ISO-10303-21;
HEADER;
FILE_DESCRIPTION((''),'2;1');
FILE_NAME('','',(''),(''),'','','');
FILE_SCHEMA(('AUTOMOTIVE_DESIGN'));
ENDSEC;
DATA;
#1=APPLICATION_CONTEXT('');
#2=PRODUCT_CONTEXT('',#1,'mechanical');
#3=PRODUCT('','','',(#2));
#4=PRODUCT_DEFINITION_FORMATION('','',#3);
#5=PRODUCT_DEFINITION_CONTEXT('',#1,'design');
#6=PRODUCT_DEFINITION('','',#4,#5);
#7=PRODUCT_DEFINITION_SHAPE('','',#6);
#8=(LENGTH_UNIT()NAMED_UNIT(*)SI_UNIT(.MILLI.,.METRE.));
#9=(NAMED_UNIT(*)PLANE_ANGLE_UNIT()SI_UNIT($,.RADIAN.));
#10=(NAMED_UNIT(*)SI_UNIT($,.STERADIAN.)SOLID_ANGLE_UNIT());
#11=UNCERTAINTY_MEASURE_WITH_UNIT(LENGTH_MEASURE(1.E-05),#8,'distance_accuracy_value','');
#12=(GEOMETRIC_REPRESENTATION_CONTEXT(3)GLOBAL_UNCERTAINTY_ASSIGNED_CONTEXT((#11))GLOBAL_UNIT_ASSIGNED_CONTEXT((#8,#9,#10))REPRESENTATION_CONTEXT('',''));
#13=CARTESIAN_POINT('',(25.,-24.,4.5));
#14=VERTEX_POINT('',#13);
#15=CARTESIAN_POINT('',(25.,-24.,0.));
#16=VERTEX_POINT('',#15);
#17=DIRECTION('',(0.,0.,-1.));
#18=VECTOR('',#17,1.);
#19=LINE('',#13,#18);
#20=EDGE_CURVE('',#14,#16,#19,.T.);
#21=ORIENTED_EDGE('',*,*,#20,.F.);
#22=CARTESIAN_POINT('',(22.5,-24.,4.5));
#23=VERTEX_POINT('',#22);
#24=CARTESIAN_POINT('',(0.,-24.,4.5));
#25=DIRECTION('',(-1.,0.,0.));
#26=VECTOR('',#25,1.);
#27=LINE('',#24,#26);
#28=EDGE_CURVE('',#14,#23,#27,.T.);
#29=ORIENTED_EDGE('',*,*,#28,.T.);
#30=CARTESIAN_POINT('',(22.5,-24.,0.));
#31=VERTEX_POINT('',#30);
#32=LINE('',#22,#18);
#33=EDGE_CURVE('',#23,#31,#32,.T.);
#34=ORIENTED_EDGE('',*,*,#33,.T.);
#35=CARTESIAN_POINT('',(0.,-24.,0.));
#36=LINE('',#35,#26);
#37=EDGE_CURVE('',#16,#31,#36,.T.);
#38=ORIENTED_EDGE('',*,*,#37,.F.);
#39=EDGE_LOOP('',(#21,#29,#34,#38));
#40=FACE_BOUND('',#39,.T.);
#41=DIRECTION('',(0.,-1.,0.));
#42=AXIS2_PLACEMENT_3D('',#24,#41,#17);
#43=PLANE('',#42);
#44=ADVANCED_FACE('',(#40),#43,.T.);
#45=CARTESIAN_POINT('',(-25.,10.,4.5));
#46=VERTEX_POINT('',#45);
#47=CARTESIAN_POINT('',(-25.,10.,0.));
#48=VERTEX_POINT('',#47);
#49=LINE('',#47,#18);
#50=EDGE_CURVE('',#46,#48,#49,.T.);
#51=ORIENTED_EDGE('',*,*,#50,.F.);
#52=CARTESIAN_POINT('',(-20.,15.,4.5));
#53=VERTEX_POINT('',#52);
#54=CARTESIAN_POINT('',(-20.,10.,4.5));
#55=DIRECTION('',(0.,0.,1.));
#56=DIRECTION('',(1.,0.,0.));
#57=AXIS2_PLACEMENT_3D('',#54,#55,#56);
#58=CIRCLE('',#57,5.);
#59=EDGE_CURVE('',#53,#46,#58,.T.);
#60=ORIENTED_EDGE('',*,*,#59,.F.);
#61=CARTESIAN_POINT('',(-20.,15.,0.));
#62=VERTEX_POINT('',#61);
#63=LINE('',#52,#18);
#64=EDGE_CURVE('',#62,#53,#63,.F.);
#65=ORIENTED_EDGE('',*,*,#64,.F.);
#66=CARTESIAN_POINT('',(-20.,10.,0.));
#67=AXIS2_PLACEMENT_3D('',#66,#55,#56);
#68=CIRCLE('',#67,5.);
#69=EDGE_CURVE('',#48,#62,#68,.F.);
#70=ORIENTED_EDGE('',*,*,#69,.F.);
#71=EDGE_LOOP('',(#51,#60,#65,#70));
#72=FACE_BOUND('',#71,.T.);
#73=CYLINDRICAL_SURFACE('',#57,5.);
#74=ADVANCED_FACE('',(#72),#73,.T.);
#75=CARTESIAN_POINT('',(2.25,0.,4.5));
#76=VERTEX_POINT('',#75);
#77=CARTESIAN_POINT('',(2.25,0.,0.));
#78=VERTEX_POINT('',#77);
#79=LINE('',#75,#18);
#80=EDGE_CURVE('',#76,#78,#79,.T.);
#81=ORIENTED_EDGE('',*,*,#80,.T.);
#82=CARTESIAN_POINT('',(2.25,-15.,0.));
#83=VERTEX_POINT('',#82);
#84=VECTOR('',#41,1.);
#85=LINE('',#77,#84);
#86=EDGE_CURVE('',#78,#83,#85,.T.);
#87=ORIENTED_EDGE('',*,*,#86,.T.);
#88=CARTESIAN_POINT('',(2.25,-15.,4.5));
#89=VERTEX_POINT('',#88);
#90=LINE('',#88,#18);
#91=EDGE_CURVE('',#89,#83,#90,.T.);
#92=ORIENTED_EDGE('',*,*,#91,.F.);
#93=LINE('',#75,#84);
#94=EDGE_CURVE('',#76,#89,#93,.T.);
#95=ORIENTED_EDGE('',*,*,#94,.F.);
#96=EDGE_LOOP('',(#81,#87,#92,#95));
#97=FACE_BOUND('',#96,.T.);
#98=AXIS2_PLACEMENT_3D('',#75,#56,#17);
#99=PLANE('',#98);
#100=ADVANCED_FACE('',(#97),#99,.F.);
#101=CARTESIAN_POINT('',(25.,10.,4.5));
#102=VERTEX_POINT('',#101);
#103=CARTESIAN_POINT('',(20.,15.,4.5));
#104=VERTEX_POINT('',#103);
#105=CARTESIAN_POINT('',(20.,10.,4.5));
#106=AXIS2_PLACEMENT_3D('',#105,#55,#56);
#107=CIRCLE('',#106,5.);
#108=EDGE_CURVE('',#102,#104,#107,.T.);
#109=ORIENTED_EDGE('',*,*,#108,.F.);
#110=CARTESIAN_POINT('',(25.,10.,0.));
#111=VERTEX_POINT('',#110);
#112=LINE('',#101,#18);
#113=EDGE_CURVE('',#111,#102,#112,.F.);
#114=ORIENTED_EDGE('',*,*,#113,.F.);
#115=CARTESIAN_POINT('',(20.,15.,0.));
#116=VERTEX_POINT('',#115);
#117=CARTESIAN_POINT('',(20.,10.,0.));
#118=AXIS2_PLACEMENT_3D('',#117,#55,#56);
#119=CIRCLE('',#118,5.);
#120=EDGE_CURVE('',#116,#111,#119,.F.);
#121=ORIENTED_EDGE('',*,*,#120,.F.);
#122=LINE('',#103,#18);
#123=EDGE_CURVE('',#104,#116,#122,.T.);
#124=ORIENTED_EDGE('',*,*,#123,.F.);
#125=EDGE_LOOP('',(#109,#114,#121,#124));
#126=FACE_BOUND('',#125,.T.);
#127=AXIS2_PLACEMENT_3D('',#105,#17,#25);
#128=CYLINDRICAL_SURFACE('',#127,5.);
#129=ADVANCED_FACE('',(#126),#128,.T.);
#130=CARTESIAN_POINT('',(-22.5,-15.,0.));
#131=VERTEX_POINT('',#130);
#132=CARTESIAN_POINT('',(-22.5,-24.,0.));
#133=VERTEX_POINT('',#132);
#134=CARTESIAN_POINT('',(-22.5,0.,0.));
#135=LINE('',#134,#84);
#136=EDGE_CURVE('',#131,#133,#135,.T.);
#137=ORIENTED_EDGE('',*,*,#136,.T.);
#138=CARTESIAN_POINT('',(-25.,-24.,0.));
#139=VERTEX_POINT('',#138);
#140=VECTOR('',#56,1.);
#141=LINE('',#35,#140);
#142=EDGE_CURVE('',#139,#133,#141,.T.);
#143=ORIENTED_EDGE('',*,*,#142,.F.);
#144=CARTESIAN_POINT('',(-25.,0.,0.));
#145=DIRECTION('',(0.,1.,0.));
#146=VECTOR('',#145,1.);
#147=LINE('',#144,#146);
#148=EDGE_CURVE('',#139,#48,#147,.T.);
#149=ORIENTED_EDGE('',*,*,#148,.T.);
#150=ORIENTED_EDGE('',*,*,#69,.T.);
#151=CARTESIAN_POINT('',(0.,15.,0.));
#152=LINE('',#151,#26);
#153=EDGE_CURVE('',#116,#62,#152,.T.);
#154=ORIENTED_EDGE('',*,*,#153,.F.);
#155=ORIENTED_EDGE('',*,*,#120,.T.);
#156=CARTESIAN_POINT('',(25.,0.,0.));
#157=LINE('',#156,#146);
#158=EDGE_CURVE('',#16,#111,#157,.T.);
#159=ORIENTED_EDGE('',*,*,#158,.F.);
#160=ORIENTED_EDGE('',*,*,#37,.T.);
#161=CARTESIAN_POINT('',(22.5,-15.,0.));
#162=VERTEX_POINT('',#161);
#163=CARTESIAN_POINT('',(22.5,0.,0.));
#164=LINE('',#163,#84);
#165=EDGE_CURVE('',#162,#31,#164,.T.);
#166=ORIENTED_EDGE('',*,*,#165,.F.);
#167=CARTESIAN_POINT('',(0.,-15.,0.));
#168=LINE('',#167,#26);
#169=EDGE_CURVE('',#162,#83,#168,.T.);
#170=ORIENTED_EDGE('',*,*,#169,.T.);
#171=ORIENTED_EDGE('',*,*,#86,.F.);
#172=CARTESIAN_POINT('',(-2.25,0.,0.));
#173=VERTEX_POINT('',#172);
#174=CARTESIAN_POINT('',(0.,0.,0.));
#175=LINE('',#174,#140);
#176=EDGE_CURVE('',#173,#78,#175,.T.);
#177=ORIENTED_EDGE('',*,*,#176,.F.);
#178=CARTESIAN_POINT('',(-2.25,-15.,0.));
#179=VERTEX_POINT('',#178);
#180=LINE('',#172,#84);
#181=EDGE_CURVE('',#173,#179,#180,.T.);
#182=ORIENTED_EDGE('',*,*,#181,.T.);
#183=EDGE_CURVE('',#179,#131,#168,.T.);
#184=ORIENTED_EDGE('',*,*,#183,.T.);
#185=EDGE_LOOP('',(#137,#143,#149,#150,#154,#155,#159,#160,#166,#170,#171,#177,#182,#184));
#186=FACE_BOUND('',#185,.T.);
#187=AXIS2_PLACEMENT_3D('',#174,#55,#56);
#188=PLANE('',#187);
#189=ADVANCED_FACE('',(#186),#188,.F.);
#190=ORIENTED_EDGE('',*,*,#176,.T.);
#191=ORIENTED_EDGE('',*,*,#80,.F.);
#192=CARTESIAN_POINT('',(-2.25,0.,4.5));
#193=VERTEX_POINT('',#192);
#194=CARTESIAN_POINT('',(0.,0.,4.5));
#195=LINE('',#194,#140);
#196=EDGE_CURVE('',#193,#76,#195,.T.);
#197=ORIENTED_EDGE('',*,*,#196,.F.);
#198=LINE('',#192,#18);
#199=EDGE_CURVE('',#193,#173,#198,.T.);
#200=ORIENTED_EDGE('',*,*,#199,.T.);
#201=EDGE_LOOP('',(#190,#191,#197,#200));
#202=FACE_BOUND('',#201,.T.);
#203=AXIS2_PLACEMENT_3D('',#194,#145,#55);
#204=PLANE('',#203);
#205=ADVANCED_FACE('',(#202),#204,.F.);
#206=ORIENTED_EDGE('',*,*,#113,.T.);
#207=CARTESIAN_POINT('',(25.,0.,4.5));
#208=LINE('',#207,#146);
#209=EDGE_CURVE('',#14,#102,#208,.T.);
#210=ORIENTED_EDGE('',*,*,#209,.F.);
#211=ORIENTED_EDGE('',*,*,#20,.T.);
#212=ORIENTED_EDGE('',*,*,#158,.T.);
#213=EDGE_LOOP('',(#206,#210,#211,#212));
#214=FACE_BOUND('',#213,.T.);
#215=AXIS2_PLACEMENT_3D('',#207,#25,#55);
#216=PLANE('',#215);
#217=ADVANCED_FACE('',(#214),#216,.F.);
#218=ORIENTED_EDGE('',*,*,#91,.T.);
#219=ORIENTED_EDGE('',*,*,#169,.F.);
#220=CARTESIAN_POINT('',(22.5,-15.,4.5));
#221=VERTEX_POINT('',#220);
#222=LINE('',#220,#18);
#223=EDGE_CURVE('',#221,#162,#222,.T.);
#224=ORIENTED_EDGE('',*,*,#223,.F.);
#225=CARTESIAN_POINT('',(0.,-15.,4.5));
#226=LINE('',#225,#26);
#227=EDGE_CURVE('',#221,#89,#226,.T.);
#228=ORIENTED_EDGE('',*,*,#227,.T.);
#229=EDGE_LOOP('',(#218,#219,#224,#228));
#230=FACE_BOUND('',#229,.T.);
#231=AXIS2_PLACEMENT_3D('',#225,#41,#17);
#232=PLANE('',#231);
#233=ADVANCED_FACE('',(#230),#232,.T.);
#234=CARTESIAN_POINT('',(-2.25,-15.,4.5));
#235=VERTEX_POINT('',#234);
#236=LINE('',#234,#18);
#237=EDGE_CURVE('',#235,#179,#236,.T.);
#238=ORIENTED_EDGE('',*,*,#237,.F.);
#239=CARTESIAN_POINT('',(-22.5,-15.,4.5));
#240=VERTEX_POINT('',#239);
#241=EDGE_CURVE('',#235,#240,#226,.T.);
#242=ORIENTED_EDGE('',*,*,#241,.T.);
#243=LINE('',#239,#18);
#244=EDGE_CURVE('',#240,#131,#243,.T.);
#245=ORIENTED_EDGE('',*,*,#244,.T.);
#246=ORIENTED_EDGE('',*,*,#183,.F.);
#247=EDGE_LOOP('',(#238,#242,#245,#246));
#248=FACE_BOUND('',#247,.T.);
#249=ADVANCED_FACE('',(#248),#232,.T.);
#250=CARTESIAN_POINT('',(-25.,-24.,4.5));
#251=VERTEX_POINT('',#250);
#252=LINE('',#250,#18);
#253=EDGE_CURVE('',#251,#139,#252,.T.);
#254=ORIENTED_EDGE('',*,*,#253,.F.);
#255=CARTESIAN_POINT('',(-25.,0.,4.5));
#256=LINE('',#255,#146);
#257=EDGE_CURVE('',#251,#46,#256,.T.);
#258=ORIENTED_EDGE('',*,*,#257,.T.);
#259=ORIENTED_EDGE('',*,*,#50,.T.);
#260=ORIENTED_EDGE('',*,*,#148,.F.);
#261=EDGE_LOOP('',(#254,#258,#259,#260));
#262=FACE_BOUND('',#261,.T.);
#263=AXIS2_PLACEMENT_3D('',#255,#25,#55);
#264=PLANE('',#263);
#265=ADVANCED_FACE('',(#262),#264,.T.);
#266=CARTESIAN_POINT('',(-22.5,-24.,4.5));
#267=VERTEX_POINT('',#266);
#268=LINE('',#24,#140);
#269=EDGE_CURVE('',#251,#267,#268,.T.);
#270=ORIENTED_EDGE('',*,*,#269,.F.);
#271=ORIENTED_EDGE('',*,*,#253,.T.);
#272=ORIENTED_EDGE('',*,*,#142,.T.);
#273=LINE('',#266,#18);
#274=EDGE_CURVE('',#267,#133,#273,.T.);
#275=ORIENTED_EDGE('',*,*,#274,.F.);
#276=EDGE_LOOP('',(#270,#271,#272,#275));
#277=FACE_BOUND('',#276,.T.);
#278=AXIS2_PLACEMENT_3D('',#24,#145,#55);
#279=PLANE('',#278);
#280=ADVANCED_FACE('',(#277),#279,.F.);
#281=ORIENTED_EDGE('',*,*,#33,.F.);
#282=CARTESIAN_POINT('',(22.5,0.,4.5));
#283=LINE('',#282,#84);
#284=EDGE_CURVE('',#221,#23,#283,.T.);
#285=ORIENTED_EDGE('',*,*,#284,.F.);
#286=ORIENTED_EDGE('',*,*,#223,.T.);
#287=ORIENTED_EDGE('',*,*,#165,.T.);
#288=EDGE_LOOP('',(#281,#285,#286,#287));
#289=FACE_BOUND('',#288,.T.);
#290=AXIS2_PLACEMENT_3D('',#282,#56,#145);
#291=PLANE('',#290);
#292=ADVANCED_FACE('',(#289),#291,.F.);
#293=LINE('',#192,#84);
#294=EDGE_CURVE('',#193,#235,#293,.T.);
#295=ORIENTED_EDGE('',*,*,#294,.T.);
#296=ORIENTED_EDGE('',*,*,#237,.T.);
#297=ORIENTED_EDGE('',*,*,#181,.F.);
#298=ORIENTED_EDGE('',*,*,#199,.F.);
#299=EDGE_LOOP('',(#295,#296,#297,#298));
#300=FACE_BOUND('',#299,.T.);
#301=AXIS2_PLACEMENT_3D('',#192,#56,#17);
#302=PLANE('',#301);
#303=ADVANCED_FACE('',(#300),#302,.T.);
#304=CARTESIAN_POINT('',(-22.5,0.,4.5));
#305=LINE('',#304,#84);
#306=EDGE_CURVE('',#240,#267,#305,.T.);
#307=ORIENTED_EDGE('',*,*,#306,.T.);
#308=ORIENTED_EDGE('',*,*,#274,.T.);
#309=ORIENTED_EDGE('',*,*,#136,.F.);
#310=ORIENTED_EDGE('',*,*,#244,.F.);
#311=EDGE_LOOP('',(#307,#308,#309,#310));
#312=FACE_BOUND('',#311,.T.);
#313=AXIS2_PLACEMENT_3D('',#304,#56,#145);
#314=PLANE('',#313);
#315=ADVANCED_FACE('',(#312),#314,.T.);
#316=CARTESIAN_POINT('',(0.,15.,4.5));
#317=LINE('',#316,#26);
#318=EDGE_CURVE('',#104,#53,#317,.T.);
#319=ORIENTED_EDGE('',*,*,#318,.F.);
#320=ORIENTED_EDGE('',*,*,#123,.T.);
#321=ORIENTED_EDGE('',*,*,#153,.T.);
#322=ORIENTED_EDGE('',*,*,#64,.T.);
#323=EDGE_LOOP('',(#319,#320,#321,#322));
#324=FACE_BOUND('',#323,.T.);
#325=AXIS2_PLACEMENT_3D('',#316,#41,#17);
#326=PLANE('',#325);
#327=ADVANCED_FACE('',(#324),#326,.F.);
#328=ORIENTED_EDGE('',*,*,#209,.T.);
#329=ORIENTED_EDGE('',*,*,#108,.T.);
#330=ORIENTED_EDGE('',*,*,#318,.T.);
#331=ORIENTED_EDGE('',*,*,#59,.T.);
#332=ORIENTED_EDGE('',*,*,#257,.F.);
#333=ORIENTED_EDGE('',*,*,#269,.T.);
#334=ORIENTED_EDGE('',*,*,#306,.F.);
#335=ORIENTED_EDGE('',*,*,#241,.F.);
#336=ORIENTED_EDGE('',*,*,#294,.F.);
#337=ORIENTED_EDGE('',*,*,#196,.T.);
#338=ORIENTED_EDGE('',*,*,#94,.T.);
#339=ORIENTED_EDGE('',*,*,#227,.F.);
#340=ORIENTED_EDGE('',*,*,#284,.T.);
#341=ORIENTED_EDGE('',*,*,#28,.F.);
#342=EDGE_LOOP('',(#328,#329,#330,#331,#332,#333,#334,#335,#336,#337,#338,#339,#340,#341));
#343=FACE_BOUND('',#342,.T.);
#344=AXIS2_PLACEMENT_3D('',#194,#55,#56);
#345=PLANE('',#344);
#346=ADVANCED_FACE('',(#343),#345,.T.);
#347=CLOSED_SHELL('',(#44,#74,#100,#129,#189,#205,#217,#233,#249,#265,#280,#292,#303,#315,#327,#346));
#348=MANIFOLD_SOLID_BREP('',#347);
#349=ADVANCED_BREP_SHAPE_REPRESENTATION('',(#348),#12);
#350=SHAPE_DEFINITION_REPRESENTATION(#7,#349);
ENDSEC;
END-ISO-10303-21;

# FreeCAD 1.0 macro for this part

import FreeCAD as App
import Part
import Sketcher
from FreeCAD import Vector


def edges_at(feature, points):
    """Names of the edges that pass closest to the given points."""
    edges = feature.Shape.Edges
    near = lambda p: min(range(len(edges)), key=lambda i: edges[i].distToShape(Part.Vertex(*p))[0])
    return sorted({f"Edge{near(p) + 1}" for p in points})


def add_polygon(sketch, points):
    """Adds a closed chain of lines whose ends are joined by coincident constraints."""
    first, n = sketch.GeometryCount, len(points)
    for a, b in zip(points, points[1:] + points[:1]):
        sketch.addGeometry(Part.LineSegment(App.Vector(*a, 0), App.Vector(*b, 0)), False)
    for i in range(n):
        sketch.addConstraint(Sketcher.Constraint("Coincident", first + i, 2, first + (i + 1) % n, 1))

doc = App.newDocument("Part")
body = doc.addObject("PartDesign::Body", "Body")

sketch1 = doc.addObject("Sketcher::SketchObject", "Sketch")
body.addObject(sketch1)
sketch1.AttachmentSupport = (doc.XY_Plane, [""])
sketch1.MapMode = "FlatFace"
add_polygon(sketch1, [(-2.25, -15), (-2.25, 0), (2.25, 0), (2.25, -15), (22.5, -15), (22.5, -24), (25, -24), (25, 15), (-25, 15), (-25, -24), (-22.5, -24), (-22.5, -15)])
sketch1.addConstraint([
    Sketcher.Constraint("Vertical", 0),
    Sketcher.Constraint("Horizontal", 1),
    Sketcher.Constraint("Vertical", 2),
    Sketcher.Constraint("Horizontal", 3),
    Sketcher.Constraint("Vertical", 4),
    Sketcher.Constraint("Horizontal", 5),
    Sketcher.Constraint("Vertical", 6),
    Sketcher.Constraint("Horizontal", 7),
    Sketcher.Constraint("Vertical", 8),
    Sketcher.Constraint("Horizontal", 9),
    Sketcher.Constraint("Vertical", 10),
    Sketcher.Constraint("Horizontal", 11),
    Sketcher.Constraint("Symmetric", 0, 2, 1, 2, -1, 1),
    Sketcher.Constraint("Symmetric", 5, 2, 8, 2, -2),
    Sketcher.Constraint("Symmetric", 3, 2, 10, 2, -2),
    Sketcher.Constraint("DistanceX", 7, 2, 7, 1, 50.0),
    Sketcher.Constraint("DistanceY", 0, 1, 0, 2, 15.0),
    Sketcher.Constraint("DistanceY", 4, 2, 4, 1, 9.0),
    Sketcher.Constraint("DistanceY", 6, 1, 6, 2, 39.0),
    Sketcher.Constraint("DistanceX", 1, 1, 1, 2, 4.5),
    Sketcher.Constraint("DistanceX", 5, 1, 5, 2, 2.5),
])
pad1 = doc.addObject("PartDesign::Pad", "Pad")
body.addObject(pad1)
pad1.Profile = sketch1
pad1.Length = 4.5
doc.recompute()

fillet = doc.addObject("PartDesign::Fillet", "Fillet")
body.addObject(fillet)
fillet.Base = (pad1, edges_at(pad1, [(-25, 15, 2.25), (25, 15, 2.25)]))
fillet.Radius = 5

doc.recompute()
